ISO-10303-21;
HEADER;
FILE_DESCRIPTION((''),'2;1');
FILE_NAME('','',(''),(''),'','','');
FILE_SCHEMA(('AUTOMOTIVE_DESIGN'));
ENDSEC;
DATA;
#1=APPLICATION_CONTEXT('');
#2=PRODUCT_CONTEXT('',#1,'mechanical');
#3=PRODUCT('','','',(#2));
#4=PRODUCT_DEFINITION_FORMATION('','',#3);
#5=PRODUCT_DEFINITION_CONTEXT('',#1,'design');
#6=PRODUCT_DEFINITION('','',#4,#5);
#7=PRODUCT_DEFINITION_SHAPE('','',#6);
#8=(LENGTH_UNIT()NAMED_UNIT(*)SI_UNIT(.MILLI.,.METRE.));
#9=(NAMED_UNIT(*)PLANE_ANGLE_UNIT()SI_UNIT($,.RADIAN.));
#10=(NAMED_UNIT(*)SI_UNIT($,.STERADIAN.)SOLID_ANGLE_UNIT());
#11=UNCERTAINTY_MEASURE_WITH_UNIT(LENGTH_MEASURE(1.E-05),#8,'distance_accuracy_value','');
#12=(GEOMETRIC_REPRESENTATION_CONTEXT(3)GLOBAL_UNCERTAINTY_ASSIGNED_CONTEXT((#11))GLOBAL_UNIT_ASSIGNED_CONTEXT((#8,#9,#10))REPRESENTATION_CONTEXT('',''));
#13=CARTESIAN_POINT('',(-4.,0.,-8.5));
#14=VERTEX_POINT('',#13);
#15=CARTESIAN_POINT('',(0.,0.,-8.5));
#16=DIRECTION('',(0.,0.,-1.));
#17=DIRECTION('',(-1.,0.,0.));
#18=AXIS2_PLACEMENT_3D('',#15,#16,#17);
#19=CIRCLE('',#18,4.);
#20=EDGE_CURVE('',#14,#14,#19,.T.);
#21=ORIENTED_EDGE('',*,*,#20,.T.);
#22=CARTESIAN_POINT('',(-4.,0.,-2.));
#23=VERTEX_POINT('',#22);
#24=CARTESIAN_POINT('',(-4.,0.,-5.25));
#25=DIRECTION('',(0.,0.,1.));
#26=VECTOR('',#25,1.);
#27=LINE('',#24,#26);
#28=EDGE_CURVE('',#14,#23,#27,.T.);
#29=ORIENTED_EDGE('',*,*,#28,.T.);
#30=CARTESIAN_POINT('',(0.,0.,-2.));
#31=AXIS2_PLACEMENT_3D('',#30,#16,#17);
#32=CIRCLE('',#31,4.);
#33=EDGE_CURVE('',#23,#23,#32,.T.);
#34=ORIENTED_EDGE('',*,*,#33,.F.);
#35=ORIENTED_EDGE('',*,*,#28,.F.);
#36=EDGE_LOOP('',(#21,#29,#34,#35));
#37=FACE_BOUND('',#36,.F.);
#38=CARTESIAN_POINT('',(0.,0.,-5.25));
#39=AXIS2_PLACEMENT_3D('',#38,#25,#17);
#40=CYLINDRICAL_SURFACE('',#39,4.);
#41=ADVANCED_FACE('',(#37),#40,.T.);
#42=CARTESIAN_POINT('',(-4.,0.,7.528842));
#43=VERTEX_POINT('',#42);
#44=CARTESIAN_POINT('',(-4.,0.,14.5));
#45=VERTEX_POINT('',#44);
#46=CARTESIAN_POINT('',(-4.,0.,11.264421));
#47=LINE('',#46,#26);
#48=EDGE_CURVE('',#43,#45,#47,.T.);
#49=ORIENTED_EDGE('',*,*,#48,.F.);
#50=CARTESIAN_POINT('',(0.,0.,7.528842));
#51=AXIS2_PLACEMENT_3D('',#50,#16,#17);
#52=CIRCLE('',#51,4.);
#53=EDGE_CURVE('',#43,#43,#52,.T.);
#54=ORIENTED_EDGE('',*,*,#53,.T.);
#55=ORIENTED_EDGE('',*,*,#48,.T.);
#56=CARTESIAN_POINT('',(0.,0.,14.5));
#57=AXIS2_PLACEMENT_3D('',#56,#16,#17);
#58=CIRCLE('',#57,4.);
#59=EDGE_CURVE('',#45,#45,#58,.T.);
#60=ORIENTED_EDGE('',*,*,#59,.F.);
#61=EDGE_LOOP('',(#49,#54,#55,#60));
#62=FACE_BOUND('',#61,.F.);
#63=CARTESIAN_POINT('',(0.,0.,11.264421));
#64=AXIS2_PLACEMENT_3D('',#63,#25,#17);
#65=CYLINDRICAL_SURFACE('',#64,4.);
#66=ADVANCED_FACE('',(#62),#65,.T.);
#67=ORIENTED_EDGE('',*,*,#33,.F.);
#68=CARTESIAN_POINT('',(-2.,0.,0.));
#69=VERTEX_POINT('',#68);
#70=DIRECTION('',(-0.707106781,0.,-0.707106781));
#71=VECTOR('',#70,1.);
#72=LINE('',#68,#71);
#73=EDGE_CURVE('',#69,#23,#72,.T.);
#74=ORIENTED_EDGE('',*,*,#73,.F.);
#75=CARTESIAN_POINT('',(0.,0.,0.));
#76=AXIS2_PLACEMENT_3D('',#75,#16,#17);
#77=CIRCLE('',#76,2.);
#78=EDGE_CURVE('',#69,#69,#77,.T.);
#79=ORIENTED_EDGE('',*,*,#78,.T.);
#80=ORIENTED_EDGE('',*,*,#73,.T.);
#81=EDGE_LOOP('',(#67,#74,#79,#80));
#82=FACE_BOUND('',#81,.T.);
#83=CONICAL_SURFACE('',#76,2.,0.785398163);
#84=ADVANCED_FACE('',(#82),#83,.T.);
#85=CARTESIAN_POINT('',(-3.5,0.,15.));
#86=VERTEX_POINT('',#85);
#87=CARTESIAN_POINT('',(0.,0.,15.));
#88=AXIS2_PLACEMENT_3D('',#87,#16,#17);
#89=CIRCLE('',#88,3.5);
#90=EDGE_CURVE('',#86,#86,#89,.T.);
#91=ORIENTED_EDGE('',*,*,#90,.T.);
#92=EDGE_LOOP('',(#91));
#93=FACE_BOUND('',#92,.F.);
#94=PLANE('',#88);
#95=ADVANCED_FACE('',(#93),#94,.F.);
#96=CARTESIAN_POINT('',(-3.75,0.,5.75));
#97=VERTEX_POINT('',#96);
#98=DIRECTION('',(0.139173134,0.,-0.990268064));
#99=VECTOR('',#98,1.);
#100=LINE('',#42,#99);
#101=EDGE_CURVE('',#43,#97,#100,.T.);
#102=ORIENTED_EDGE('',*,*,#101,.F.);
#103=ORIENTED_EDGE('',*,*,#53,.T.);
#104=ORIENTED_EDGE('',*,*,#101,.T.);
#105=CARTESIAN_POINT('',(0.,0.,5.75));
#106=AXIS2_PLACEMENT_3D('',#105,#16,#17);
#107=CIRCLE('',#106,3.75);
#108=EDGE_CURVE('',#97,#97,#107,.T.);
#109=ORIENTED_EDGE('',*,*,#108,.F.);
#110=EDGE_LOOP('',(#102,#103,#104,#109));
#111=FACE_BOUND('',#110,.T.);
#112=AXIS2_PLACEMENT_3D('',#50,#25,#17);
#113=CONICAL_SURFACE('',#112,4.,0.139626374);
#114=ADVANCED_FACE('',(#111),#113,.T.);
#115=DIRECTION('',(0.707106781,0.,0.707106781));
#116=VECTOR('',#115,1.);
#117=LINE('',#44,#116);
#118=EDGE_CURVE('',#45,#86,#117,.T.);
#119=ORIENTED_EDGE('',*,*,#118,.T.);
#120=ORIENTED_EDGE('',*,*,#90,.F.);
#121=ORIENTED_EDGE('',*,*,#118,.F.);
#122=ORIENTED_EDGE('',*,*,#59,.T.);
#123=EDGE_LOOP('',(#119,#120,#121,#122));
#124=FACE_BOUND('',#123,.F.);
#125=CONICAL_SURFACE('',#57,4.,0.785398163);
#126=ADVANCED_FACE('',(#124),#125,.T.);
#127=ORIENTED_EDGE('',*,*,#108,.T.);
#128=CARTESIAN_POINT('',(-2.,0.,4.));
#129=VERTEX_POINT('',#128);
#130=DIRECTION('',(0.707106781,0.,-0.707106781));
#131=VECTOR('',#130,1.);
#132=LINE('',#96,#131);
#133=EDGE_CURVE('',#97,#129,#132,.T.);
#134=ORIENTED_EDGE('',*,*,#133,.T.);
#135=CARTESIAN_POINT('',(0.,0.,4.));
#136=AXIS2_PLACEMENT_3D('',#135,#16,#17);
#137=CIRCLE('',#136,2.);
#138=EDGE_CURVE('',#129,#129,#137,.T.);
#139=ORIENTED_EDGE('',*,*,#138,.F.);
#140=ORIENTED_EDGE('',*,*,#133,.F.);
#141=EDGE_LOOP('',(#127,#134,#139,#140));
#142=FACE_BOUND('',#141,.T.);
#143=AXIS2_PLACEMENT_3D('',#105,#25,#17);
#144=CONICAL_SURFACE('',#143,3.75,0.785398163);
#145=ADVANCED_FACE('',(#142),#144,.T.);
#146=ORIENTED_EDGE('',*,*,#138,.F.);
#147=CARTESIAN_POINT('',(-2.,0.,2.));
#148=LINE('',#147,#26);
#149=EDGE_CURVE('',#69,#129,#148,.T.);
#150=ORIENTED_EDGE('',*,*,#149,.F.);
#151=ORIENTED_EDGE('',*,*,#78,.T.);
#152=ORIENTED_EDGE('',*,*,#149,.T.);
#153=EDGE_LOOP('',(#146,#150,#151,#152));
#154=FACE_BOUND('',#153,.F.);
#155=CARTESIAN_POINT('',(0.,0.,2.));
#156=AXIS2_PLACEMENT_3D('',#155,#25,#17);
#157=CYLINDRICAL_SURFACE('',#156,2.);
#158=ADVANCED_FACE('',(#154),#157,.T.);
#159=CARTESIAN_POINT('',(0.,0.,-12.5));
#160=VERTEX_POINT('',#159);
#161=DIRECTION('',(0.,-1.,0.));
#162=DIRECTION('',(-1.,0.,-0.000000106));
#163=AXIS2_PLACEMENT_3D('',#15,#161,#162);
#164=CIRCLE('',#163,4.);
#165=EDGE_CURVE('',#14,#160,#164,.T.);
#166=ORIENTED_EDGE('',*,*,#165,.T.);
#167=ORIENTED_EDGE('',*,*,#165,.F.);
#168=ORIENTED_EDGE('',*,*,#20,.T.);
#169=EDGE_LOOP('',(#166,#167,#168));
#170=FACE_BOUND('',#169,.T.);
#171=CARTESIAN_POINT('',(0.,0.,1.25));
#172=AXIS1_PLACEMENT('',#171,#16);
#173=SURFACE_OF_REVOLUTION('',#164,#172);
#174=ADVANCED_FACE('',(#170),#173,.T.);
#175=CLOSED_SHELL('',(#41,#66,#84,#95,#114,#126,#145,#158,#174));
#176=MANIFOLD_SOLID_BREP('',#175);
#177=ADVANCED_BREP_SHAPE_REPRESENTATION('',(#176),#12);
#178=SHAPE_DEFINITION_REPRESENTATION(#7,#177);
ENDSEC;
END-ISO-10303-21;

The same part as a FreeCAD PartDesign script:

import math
import FreeCAD as App
import Part
import Sketcher
from FreeCAD import Vector
Q = App.Units.Quantity


def edges_at(feature, points):
    """Names of the edges that pass closest to the given points."""
    edges = feature.Shape.Edges
    near = lambda p: min(range(len(edges)), key=lambda i: edges[i].distToShape(Part.Vertex(*p))[0])
    return sorted({f"Edge{near(p) + 1}" for p in points})

doc = App.newDocument("Part")
params = doc.addObject("Spreadsheet::Sheet", "Params")
for row, (alias, value) in enumerate([
    ("sketch1_radius", "4 mm"),
    ("sketch1_height", "6.5 mm"),
    ("sketch1_height2", "27.5 mm"),
    ("revolution_angle", "360 deg"),
    ("chamfer_size", "0.5 mm"),
    ("chamfer_size2", "0.5 mm"),
], start=1):
    params.set(f"A{row}", alias)
    params.set(f"B{row}", "=" + value)
    params.setAlias(f"B{row}", alias)

body = doc.addObject("PartDesign::Body", "Body")

sketch1 = body.newObject("Sketcher::SketchObject", "Sketch")
sketch1.AttachmentSupport = (doc.getObject("XZ_Plane"), [""])
sketch1.MapMode = "FlatFace"
sketch1.addGeometry(Part.LineSegment(Vector(-4, 15, 0), Vector(-4, 7.528842, 0)), False)
sketch1.addGeometry(Part.LineSegment(Vector(-4, 7.528842, 0), Vector(-3.75, 5.75, 0)), False)
sketch1.addGeometry(Part.LineSegment(Vector(-3.75, 5.75, 0), Vector(-2, 4, 0)), False)
sketch1.addGeometry(Part.LineSegment(Vector(-2, 4, 0), Vector(-2, 0, 0)), False)
sketch1.addGeometry(Part.LineSegment(Vector(-2, 0, 0), Vector(-4, -2, 0)), False)
sketch1.addGeometry(Part.LineSegment(Vector(-4, -2, 0), Vector(-4, -8.5, 0)), False)
sketch1.addGeometry(Part.ArcOfCircle(Part.Circle(Vector(0, -8.5, 0), Vector(0, 0, 1), 4), math.radians(-179.999994), math.radians(-90.000006)), False)
sketch1.addGeometry(Part.LineSegment(Vector(0, -12.5, 0), Vector(0, 15, 0)), False)
sketch1.addGeometry(Part.LineSegment(Vector(0, 15, 0), Vector(-4, 15, 0)), False)
sketch1.addConstraint(Sketcher.Constraint("Coincident", 0, 2, 1, 1))
sketch1.addConstraint(Sketcher.Constraint("Coincident", 1, 2, 2, 1))
sketch1.addConstraint(Sketcher.Constraint("Coincident", 2, 2, 3, 1))
sketch1.addConstraint(Sketcher.Constraint("Coincident", 3, 2, 4, 1))
sketch1.addConstraint(Sketcher.Constraint("Coincident", 4, 2, 5, 1))
sketch1.addConstraint(Sketcher.Constraint("Tangent", 5, 2, 6, 1))
sketch1.addConstraint(Sketcher.Constraint("Coincident", 6, 2, 7, 1))
sketch1.addConstraint(Sketcher.Constraint("Coincident", 7, 2, 8, 1))
sketch1.addConstraint(Sketcher.Constraint("Coincident", 8, 2, 0, 1))
sketch1.addConstraint(Sketcher.Constraint("Vertical", 0))
sketch1.addConstraint(Sketcher.Constraint("Vertical", 3))
sketch1.addConstraint(Sketcher.Constraint("Vertical", 5))
sketch1.addConstraint(Sketcher.Constraint("Vertical", 7))
sketch1.addConstraint(Sketcher.Constraint("Horizontal", 8))
sketch1.addConstraint(Sketcher.Constraint("PointOnObject", 6, 3, -2))
sketch1.addConstraint(Sketcher.Constraint("PointOnObject", 3, 2, -1))
sketch1.addConstraint(Sketcher.Constraint("PointOnObject", 6, 2, -2))
sketch1.addConstraint(Sketcher.Constraint("Perpendicular", 2, 4))
sketch1.addConstraint(Sketcher.Constraint("Vertical", 0, 2, 4, 2))
sketch1.addConstraint(Sketcher.Constraint("Equal", 8, 3))
sketch1.addConstraint(Sketcher.Constraint("Radius", 6, 4.0))
sketch1.addConstraint(Sketcher.Constraint("Angle", 1, Q("-81.999998 deg")))
sketch1.addConstraint(Sketcher.Constraint("Angle", 2, Q("-45 deg")))
sketch1.addConstraint(Sketcher.Constraint("DistanceY", 5, 2, 5, 1, 6.5))
sketch1.addConstraint(Sketcher.Constraint("DistanceY", 7, 1, 7, 2, 27.5))
sketch1.addConstraint(Sketcher.Constraint("DistanceX", 2, 2, -1, 1, 2.0))
sketch1.addConstraint(Sketcher.Constraint("DistanceX", 1, 2, -1, 1, 3.75))
sketch1.setExpression("Constraints[20]", "Params.sketch1_radius")
sketch1.setExpression("Constraints[23]", "Params.sketch1_height")
sketch1.setExpression("Constraints[24]", "Params.sketch1_height2")
revolution = body.newObject("PartDesign::Revolution", "Revolution")
revolution.Profile = sketch1
revolution.ReferenceAxis = (sketch1, ["V_Axis"])
revolution.setExpression("Angle", "Params.revolution_angle")
doc.recompute()

chamfer = body.newObject("PartDesign::Chamfer", "Chamfer")
chamfer.Base = (revolution, edges_at(revolution, [(4, 0, 15)]))
chamfer.ChamferType = "Two distances"
chamfer.setExpression("Size", "Params.chamfer_size")
chamfer.setExpression("Size2", "Params.chamfer_size2")

doc.recompute()
